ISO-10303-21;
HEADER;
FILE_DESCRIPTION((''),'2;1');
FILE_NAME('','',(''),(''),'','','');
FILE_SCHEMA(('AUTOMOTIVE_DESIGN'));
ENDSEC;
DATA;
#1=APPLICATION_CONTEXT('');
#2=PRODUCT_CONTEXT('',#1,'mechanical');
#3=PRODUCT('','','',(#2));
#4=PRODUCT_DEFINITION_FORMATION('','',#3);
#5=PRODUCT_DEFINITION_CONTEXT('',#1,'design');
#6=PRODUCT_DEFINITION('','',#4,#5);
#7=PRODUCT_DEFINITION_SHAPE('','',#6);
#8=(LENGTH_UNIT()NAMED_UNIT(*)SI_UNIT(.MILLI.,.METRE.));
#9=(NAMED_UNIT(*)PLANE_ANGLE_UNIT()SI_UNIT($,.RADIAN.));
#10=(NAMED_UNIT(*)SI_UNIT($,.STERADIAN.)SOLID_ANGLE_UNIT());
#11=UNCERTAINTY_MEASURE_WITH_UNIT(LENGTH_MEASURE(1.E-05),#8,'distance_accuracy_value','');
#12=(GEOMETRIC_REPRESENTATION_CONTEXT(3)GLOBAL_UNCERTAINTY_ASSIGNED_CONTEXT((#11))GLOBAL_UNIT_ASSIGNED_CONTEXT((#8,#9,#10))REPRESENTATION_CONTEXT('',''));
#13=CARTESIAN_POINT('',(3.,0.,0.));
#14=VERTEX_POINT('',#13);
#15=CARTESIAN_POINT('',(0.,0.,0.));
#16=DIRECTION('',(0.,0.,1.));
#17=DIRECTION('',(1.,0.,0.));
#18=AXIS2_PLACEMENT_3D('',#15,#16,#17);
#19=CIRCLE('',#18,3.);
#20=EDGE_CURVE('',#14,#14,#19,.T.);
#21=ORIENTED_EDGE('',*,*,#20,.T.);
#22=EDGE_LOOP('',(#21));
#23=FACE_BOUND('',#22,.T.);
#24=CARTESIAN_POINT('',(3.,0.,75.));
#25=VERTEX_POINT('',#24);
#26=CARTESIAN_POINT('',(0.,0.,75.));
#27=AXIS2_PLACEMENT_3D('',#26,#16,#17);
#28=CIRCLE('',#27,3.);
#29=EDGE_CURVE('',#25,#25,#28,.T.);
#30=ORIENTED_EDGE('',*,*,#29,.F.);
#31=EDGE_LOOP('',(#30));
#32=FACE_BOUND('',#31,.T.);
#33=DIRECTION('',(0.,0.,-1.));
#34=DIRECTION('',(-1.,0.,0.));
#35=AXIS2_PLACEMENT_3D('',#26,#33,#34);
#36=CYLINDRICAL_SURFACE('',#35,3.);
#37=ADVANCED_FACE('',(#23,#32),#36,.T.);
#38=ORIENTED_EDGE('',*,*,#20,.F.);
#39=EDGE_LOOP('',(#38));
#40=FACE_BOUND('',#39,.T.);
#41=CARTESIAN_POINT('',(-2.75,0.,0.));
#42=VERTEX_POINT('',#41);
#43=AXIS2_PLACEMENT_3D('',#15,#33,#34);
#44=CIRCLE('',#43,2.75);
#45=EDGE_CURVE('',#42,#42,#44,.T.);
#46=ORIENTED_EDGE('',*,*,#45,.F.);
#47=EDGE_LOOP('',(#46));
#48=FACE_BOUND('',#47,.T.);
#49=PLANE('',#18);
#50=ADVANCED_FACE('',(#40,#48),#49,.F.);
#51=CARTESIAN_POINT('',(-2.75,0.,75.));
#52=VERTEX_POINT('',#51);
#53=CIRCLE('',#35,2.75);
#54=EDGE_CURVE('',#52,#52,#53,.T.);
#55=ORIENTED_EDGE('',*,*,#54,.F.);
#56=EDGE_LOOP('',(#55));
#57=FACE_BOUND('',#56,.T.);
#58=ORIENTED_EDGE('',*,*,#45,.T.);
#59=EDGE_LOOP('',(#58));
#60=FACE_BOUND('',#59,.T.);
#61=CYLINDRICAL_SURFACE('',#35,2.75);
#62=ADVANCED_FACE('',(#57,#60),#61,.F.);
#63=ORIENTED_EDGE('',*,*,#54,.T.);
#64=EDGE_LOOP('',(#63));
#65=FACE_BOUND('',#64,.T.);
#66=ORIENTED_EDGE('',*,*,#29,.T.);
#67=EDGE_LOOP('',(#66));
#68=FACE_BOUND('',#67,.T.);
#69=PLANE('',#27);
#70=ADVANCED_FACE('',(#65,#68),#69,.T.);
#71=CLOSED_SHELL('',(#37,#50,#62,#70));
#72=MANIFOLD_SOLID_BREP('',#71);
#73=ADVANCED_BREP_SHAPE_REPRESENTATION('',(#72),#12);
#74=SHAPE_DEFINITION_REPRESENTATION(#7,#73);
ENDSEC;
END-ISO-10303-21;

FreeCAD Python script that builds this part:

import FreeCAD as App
import Part
import Sketcher

doc = App.newDocument("Part")
params = doc.addObject("Spreadsheet::Sheet", "Params")
for row, (alias, value) in enumerate([
    ("sketch1_diameter", "6 mm"),
    ("pad1_length", "75 mm"),
    ("sketch2_diameter", "5.5 mm"),
    ("pocket1_length", "75 mm"),
], start=1):
    params.set(f"A{row}", alias)
    params.set(f"B{row}", "=" + value)
    params.setAlias(f"B{row}", alias)

body = doc.addObject("PartDesign::Body", "Body")

sketch1 = doc.addObject("Sketcher::SketchObject", "Sketch")
body.addObject(sketch1)
sketch1.AttachmentSupport = (doc.XY_Plane, [""])
sketch1.MapMode = "FlatFace"
sketch1.addGeometry(Part.Circle(App.Vector(0, 0, 0), App.Vector(0, 0, 1), 3), False)
sketch1.addConstraint(Sketcher.Constraint("Coincident", 0, 3, -1, 1))
sketch1.addConstraint(Sketcher.Constraint("Diameter", 0, 6.0))
sketch1.setExpression("Constraints[1]", "Params.sketch1_diameter")
pad1 = doc.addObject("PartDesign::Pad", "Pad")
body.addObject(pad1)
pad1.Profile = sketch1
pad1.setExpression("Length", "Params.pad1_length")

sketch2 = doc.addObject("Sketcher::SketchObject", "Sketch001")
body.addObject(sketch2)
sketch2.AttachmentSupport = (doc.XY_Plane, [""])
sketch2.MapMode = "FlatFace"
sketch2.addGeometry(Part.Circle(App.Vector(0, 0, 0), App.Vector(0, 0, 1), 2.8), False)
sketch2.addConstraint(Sketcher.Constraint("Coincident", 0, 3, -1, 1))
sketch2.addConstraint(Sketcher.Constraint("Diameter", 0, 5.5))
sketch2.setExpression("Constraints[1]", "Params.sketch2_diameter")
pocket1 = doc.addObject("PartDesign::Pocket", "Pocket")
body.addObject(pocket1)
pocket1.Profile = sketch2
pocket1.setExpression("Length", "Params.pocket1_length")
pocket1.Reversed = True

doc.recompute()
